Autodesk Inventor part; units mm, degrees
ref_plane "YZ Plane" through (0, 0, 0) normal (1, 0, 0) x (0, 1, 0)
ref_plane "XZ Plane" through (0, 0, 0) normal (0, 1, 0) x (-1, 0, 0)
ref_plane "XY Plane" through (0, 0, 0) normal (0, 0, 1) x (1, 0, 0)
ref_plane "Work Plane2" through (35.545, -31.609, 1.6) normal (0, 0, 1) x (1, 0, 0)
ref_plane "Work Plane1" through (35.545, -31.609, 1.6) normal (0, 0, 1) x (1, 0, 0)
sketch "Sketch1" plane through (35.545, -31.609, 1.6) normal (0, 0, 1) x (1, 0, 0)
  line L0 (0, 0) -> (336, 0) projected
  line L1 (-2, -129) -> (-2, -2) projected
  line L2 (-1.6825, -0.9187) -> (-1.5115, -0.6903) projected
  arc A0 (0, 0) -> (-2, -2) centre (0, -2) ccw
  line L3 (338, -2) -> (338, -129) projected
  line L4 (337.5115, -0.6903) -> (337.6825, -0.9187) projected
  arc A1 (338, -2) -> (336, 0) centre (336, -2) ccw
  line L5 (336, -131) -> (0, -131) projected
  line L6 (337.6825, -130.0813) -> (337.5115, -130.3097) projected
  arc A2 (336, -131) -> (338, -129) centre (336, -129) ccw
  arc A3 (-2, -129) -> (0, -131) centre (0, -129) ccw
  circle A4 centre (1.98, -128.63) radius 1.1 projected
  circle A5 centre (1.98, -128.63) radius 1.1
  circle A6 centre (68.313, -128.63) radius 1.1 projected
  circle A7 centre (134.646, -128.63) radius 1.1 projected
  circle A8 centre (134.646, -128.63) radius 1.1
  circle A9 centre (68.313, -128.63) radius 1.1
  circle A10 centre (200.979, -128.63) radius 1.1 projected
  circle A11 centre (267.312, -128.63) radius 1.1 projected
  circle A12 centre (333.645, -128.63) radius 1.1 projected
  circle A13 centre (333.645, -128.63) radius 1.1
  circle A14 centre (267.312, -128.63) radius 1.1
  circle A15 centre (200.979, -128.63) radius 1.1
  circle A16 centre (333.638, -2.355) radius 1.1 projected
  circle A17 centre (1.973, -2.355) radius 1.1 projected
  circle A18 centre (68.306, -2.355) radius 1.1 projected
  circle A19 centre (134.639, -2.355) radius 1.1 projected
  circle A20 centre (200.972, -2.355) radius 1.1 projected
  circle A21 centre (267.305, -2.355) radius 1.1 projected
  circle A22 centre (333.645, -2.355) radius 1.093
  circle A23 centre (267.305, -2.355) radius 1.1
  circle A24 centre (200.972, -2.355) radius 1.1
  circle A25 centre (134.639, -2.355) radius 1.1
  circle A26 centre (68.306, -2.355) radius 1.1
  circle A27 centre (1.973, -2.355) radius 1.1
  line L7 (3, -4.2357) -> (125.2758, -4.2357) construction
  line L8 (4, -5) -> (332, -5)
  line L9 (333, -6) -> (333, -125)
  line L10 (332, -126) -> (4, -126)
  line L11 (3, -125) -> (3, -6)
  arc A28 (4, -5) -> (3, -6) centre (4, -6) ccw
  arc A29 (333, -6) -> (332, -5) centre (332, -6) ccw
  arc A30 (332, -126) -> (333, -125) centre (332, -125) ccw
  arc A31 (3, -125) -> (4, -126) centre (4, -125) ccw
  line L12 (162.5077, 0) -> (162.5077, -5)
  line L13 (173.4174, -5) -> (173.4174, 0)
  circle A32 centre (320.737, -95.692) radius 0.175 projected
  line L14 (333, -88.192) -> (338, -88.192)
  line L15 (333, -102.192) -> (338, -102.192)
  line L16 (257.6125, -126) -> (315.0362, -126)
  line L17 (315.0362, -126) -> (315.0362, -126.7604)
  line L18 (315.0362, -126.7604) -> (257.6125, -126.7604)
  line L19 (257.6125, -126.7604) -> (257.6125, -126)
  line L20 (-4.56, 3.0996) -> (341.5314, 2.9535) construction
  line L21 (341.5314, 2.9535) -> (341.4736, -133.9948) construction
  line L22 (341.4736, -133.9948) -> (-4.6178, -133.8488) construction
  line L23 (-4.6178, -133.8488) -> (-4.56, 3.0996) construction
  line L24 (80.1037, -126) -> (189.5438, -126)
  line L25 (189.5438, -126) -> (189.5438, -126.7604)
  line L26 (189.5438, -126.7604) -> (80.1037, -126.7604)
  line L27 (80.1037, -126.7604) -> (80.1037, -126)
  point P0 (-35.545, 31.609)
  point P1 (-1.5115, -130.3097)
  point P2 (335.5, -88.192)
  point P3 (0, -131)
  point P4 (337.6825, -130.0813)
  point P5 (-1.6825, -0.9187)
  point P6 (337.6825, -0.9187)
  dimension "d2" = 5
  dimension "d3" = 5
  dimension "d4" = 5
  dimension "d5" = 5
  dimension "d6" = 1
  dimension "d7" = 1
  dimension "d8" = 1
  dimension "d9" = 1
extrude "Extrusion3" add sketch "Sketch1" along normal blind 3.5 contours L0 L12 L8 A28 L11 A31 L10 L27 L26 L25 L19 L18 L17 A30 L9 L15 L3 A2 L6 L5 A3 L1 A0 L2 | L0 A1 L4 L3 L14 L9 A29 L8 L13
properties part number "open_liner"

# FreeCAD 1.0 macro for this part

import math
import FreeCAD as App
import Part
import Sketcher
Q = App.Units.Quantity

doc = App.newDocument("Part")
body = doc.addObject("PartDesign::Body", "Body")
body.AllowCompound = True

sketch1 = doc.addObject("Sketcher::SketchObject", "Sketch")
body.addObject(sketch1)
sketch1.AttachmentSupport = (doc.XY_Plane, [""])
sketch1.MapMode = "FlatFace"
sketch1.AttachmentOffset = App.Placement(App.Vector(0, 0, 1.6), App.Rotation())
sketch1.addGeometry(Part.LineSegment(App.Vector(198.05, -31.61, 0), App.Vector(35.55, -31.61, 0)), False)
sketch1.addGeometry(Part.ArcOfCircle(Part.Circle(App.Vector(35.55, -33.61, 0), App.Vector(0, 0, 1), 2), math.radians(90), math.radians(139)), False)
sketch1.addGeometry(Part.LineSegment(App.Vector(34.03, -32.3, 0), App.Vector(33.86, -32.53, 0)), False)
sketch1.addGeometry(Part.ArcOfCircle(Part.Circle(App.Vector(35.55, -33.61, 0), App.Vector(0, 0, 1), 2), math.radians(147), math.radians(180)), False)
sketch1.addGeometry(Part.LineSegment(App.Vector(33.55, -33.61, 0), App.Vector(33.55, -160.61, 0)), False)
sketch1.addGeometry(Part.ArcOfCircle(Part.Circle(App.Vector(35.55, -160.61, 0), App.Vector(0, 0, 1), 2), math.radians(180), math.radians(270)), False)
sketch1.addGeometry(Part.LineSegment(App.Vector(35.55, -162.61, 0), App.Vector(371.55, -162.61, 0)), False)
sketch1.addGeometry(Part.ArcOfCircle(Part.Circle(App.Vector(371.55, -160.61, 0), App.Vector(0, 0, 1), 2), math.radians(-90), math.radians(-41)), False)
sketch1.addGeometry(Part.LineSegment(App.Vector(373.06, -161.92, 0), App.Vector(373.23, -161.69, 0)), False)
sketch1.addGeometry(Part.ArcOfCircle(Part.Circle(App.Vector(371.55, -160.61, 0), App.Vector(0, 0, 1), 2), math.radians(-33), math.radians(0)), False)
sketch1.addGeometry(Part.LineSegment(App.Vector(373.55, -160.61, 0), App.Vector(373.55, -133.8, 0)), False)
sketch1.addGeometry(Part.LineSegment(App.Vector(373.55, -133.8, 0), App.Vector(368.55, -133.8, 0)), False)
sketch1.addGeometry(Part.LineSegment(App.Vector(368.55, -133.8, 0), App.Vector(368.55, -156.61, 0)), False)
sketch1.addGeometry(Part.ArcOfCircle(Part.Circle(App.Vector(367.55, -156.61, 0), App.Vector(0, 0, 1), 1), math.radians(-90), math.radians(0)), False)
sketch1.addGeometry(Part.LineSegment(App.Vector(367.55, -157.61, 0), App.Vector(350.58, -157.61, 0)), False)
sketch1.addGeometry(Part.LineSegment(App.Vector(350.58, -157.61, 0), App.Vector(350.58, -158.37, 0)), False)
sketch1.addGeometry(Part.LineSegment(App.Vector(350.58, -158.37, 0), App.Vector(293.16, -158.37, 0)), False)
sketch1.addGeometry(Part.LineSegment(App.Vector(293.16, -158.37, 0), App.Vector(293.16, -157.61, 0)), False)
sketch1.addGeometry(Part.LineSegment(App.Vector(293.16, -157.61, 0), App.Vector(225.09, -157.61, 0)), False)
sketch1.addGeometry(Part.LineSegment(App.Vector(225.09, -157.61, 0), App.Vector(225.09, -158.37, 0)), False)
sketch1.addGeometry(Part.LineSegment(App.Vector(225.09, -158.37, 0), App.Vector(115.65, -158.37, 0)), False)
sketch1.addGeometry(Part.LineSegment(App.Vector(115.65, -158.37, 0), App.Vector(115.65, -157.61, 0)), False)
sketch1.addGeometry(Part.LineSegment(App.Vector(115.65, -157.61, 0), App.Vector(39.55, -157.61, 0)), False)
sketch1.addGeometry(Part.ArcOfCircle(Part.Circle(App.Vector(39.55, -156.61, 0), App.Vector(0, 0, 1), 1), math.radians(180), math.radians(270)), False)
sketch1.addGeometry(Part.LineSegment(App.Vector(38.55, -156.61, 0), App.Vector(38.55, -37.61, 0)), False)
sketch1.addGeometry(Part.ArcOfCircle(Part.Circle(App.Vector(39.55, -37.61, 0), App.Vector(0, 0, 1), 1), math.radians(90), math.radians(180)), False)
sketch1.addGeometry(Part.LineSegment(App.Vector(39.55, -36.61, 0), App.Vector(198.05, -36.61, 0)), False)
sketch1.addGeometry(Part.LineSegment(App.Vector(198.05, -36.61, 0), App.Vector(198.05, -31.61, 0)), False)
sketch1.addGeometry(Part.Circle(App.Vector(37.52, -160.24, 0), App.Vector(0, 0, 1), 1.1), False)
sketch1.addGeometry(Part.Circle(App.Vector(103.86, -160.24, 0), App.Vector(0, 0, 1), 1.1), False)
sketch1.addGeometry(Part.Circle(App.Vector(170.19, -160.24, 0), App.Vector(0, 0, 1), 1.1), False)
sketch1.addGeometry(Part.Circle(App.Vector(236.52, -160.24, 0), App.Vector(0, 0, 1), 1.1), False)
sketch1.addGeometry(Part.Circle(App.Vector(302.86, -160.24, 0), App.Vector(0, 0, 1), 1.1), False)
sketch1.addGeometry(Part.Circle(App.Vector(369.19, -160.24, 0), App.Vector(0, 0, 1), 1.1), False)
sketch1.addGeometry(Part.Circle(App.Vector(37.52, -33.96, 0), App.Vector(0, 0, 1), 1.1), False)
sketch1.addGeometry(Part.Circle(App.Vector(103.85, -33.96, 0), App.Vector(0, 0, 1), 1.1), False)
sketch1.addGeometry(Part.Circle(App.Vector(170.18, -33.96, 0), App.Vector(0, 0, 1), 1.1), False)
sketch1.addGeometry(Part.LineSegment(App.Vector(371.55, -31.61, 0), App.Vector(208.96, -31.61, 0)), False)
sketch1.addGeometry(Part.LineSegment(App.Vector(208.96, -31.61, 0), App.Vector(208.96, -36.61, 0)), False)
sketch1.addGeometry(Part.LineSegment(App.Vector(208.96, -36.61, 0), App.Vector(367.55, -36.61, 0)), False)
sketch1.addGeometry(Part.ArcOfCircle(Part.Circle(App.Vector(367.55, -37.61, 0), App.Vector(0, 0, 1), 1), math.radians(0), math.radians(90)), False)
sketch1.addGeometry(Part.LineSegment(App.Vector(368.55, -37.61, 0), App.Vector(368.55, -119.8, 0)), False)
sketch1.addGeometry(Part.LineSegment(App.Vector(368.55, -119.8, 0), App.Vector(373.55, -119.8, 0)), False)
sketch1.addGeometry(Part.LineSegment(App.Vector(373.55, -119.8, 0), App.Vector(373.55, -33.61, 0)), False)
sketch1.addGeometry(Part.ArcOfCircle(Part.Circle(App.Vector(371.55, -33.61, 0), App.Vector(0, 0, 1), 2), math.radians(0), math.radians(33)), False)
sketch1.addGeometry(Part.LineSegment(App.Vector(373.23, -32.53, 0), App.Vector(373.06, -32.3, 0)), False)
sketch1.addGeometry(Part.ArcOfCircle(Part.Circle(App.Vector(371.55, -33.61, 0), App.Vector(0, 0, 1), 2), math.radians(41), math.radians(90)), False)
sketch1.addGeometry(Part.Circle(App.Vector(236.52, -33.96, 0), App.Vector(0, 0, 1), 1.1), False)
sketch1.addGeometry(Part.Circle(App.Vector(302.85, -33.96, 0), App.Vector(0, 0, 1), 1.1), False)
sketch1.addGeometry(Part.Circle(App.Vector(369.18, -33.96, 0), App.Vector(0, 0, 1), 1.1), False)
sketch1.addConstraint(Sketcher.Constraint("Tangent", 0, 2, 1, 1))
sketch1.addConstraint(Sketcher.Constraint("Coincident", 1, 2, 2, 1))
sketch1.addConstraint(Sketcher.Constraint("Coincident", 2, 2, 3, 1))
sketch1.addConstraint(Sketcher.Constraint("Tangent", 3, 2, 4, 1))
sketch1.addConstraint(Sketcher.Constraint("Tangent", 4, 2, 5, 1))
sketch1.addConstraint(Sketcher.Constraint("Tangent", 5, 2, 6, 1))
sketch1.addConstraint(Sketcher.Constraint("Tangent", 6, 2, 7, 1))
sketch1.addConstraint(Sketcher.Constraint("Coincident", 7, 2, 8, 1))
sketch1.addConstraint(Sketcher.Constraint("Coincident", 8, 2, 9, 1))
sketch1.addConstraint(Sketcher.Constraint("Tangent", 9, 2, 10, 1))
sketch1.addConstraint(Sketcher.Constraint("Coincident", 10, 2, 11, 1))
sketch1.addConstraint(Sketcher.Constraint("Coincident", 11, 2, 12, 1))
sketch1.addConstraint(Sketcher.Constraint("Tangent", 12, 2, 13, 2))
sketch1.addConstraint(Sketcher.Constraint("Tangent", 13, 1, 14, 1))
sketch1.addConstraint(Sketcher.Constraint("Coincident", 14, 2, 15, 1))
sketch1.addConstraint(Sketcher.Constraint("Coincident", 15, 2, 16, 1))
sketch1.addConstraint(Sketcher.Constraint("Coincident", 16, 2, 17, 1))
sketch1.addConstraint(Sketcher.Constraint("Coincident", 17, 2, 18, 1))
sketch1.addConstraint(Sketcher.Constraint("Coincident", 18, 2, 19, 1))
sketch1.addConstraint(Sketcher.Constraint("Coincident", 19, 2, 20, 1))
sketch1.addConstraint(Sketcher.Constraint("Coincident", 20, 2, 21, 1))
sketch1.addConstraint(Sketcher.Constraint("Coincident", 21, 2, 22, 1))
sketch1.addConstraint(Sketcher.Constraint("Tangent", 22, 2, 23, 2))
sketch1.addConstraint(Sketcher.Constraint("Tangent", 23, 1, 24, 1))
sketch1.addConstraint(Sketcher.Constraint("Tangent", 24, 2, 25, 2))
sketch1.addConstraint(Sketcher.Constraint("Tangent", 25, 1, 26, 1))
sketch1.addConstraint(Sketcher.Constraint("Coincident", 26, 2, 27, 1))
sketch1.addConstraint(Sketcher.Constraint("Coincident", 27, 2, 0, 1))
sketch1.addConstraint(Sketcher.Constraint("Coincident", 37, 2, 38, 1))
sketch1.addConstraint(Sketcher.Constraint("Coincident", 38, 2, 39, 1))
sketch1.addConstraint(Sketcher.Constraint("Tangent", 39, 2, 40, 2))
sketch1.addConstraint(Sketcher.Constraint("Tangent", 40, 1, 41, 1))
sketch1.addConstraint(Sketcher.Constraint("Coincident", 41, 2, 42, 1))
sketch1.addConstraint(Sketcher.Constraint("Coincident", 42, 2, 43, 1))
sketch1.addConstraint(Sketcher.Constraint("Tangent", 43, 2, 44, 1))
sketch1.addConstraint(Sketcher.Constraint("Coincident", 44, 2, 45, 1))
sketch1.addConstraint(Sketcher.Constraint("Coincident", 45, 2, 46, 1))
sketch1.addConstraint(Sketcher.Constraint("Tangent", 46, 2, 37, 1))
sketch1.addConstraint(Sketcher.Constraint("Horizontal", 0))
sketch1.addConstraint(Sketcher.Constraint("Vertical", 4))
sketch1.addConstraint(Sketcher.Constraint("Horizontal", 6))
sketch1.addConstraint(Sketcher.Constraint("Vertical", 10))
sketch1.addConstraint(Sketcher.Constraint("Horizontal", 11))
sketch1.addConstraint(Sketcher.Constraint("Vertical", 12))
sketch1.addConstraint(Sketcher.Constraint("Horizontal", 14))
sketch1.addConstraint(Sketcher.Constraint("Vertical", 15))
sketch1.addConstraint(Sketcher.Constraint("Horizontal", 16))
sketch1.addConstraint(Sketcher.Constraint("Vertical", 17))
sketch1.addConstraint(Sketcher.Constraint("Horizontal", 18))
sketch1.addConstraint(Sketcher.Constraint("Vertical", 19))
sketch1.addConstraint(Sketcher.Constraint("Horizontal", 20))
sketch1.addConstraint(Sketcher.Constraint("Vertical", 21))
sketch1.addConstraint(Sketcher.Constraint("Horizontal", 22))
sketch1.addConstraint(Sketcher.Constraint("Vertical", 24))
sketch1.addConstraint(Sketcher.Constraint("Horizontal", 26))
sketch1.addConstraint(Sketcher.Constraint("Vertical", 27))
sketch1.addConstraint(Sketcher.Constraint("Horizontal", 37))
sketch1.addConstraint(Sketcher.Constraint("Vertical", 38))
sketch1.addConstraint(Sketcher.Constraint("Horizontal", 39))
sketch1.addConstraint(Sketcher.Constraint("Vertical", 41))
sketch1.addConstraint(Sketcher.Constraint("Horizontal", 42))
sketch1.addConstraint(Sketcher.Constraint("Vertical", 43))
sketch1.addConstraint(Sketcher.Constraint("Coincident", 3, 3, 1, 3))
sketch1.addConstraint(Sketcher.Constraint("Coincident", 9, 3, 7, 3))
sketch1.addConstraint(Sketcher.Constraint("Coincident", 46, 3, 44, 3))
sketch1.addConstraint(Sketcher.Constraint("Equal", 1, 3))
sketch1.addConstraint(Sketcher.Constraint("Equal", 3, 5))
sketch1.addConstraint(Sketcher.Constraint("Equal", 5, 7))
sketch1.addConstraint(Sketcher.Constraint("Equal", 7, 9))
sketch1.addConstraint(Sketcher.Constraint("Equal", 13, 23))
sketch1.addConstraint(Sketcher.Constraint("Equal", 23, 25))
sketch1.addConstraint(Sketcher.Constraint("Equal", 28, 29))
sketch1.addConstraint(Sketcher.Constraint("Equal", 29, 30))
sketch1.addConstraint(Sketcher.Constraint("Equal", 30, 31))
sketch1.addConstraint(Sketcher.Constraint("Equal", 31, 32))
sketch1.addConstraint(Sketcher.Constraint("Equal", 32, 33))
sketch1.addConstraint(Sketcher.Constraint("Equal", 33, 34))
sketch1.addConstraint(Sketcher.Constraint("Equal", 34, 35))
sketch1.addConstraint(Sketcher.Constraint("Equal", 35, 36))
sketch1.addConstraint(Sketcher.Constraint("Equal", 25, 40))
sketch1.addConstraint(Sketcher.Constraint("Equal", 9, 44))
sketch1.addConstraint(Sketcher.Constraint("Equal", 44, 46))
sketch1.addConstraint(Sketcher.Constraint("Equal", 36, 47))
sketch1.addConstraint(Sketcher.Constraint("Equal", 47, 48))
sketch1.addConstraint(Sketcher.Constraint("Equal", 48, 49))
sketch1.addConstraint(Sketcher.Constraint("Parallel", 2, 8))
sketch1.addConstraint(Sketcher.Constraint("Horizontal", 13, 3, 23, 3))
sketch1.addConstraint(Sketcher.Constraint("Horizontal", 28, 3, 29, 3))
sketch1.addConstraint(Sketcher.Constraint("Horizontal", 29, 3, 30, 3))
sketch1.addConstraint(Sketcher.Constraint("Horizontal", 30, 3, 31, 3))
sketch1.addConstraint(Sketcher.Constraint("Horizontal", 31, 3, 32, 3))
sketch1.addConstraint(Sketcher.Constraint("Horizontal", 32, 3, 33, 3))
sketch1.addConstraint(Sketcher.Constraint("Horizontal", 34, 3, 35, 3))
sketch1.addConstraint(Sketcher.Constraint("Horizontal", 35, 3, 36, 3))
sketch1.addConstraint(Sketcher.Constraint("Horizontal", 25, 3, 40, 3))
sketch1.addConstraint(Sketcher.Constraint("Horizontal", 3, 3, 44, 3))
sketch1.addConstraint(Sketcher.Constraint("Horizontal", 36, 3, 47, 3))
sketch1.addConstraint(Sketcher.Constraint("Horizontal", 47, 3, 48, 3))
sketch1.addConstraint(Sketcher.Constraint("Horizontal", 48, 3, 49, 3))
sketch1.addConstraint(Sketcher.Constraint("Horizontal", 14, 2, 17, 2))
sketch1.addConstraint(Sketcher.Constraint("Horizontal", 16, 2, 19, 2))
sketch1.addConstraint(Sketcher.Constraint("Horizontal", 2, 2, 44, 2))
sketch1.addConstraint(Sketcher.Constraint("Horizontal", 1, 2, 45, 2))
sketch1.addConstraint(Sketcher.Constraint("Vertical", 13, 3, 40, 3))
sketch1.addConstraint(Sketcher.Constraint("Vertical", 9, 3, 44, 3))
sketch1.addConstraint(Sketcher.Constraint("Vertical", 8, 2, 44, 2))
sketch1.addConstraint(Sketcher.Constraint("Equal", 42, 27))
sketch1.addConstraint(Sketcher.Constraint("Radius", 13, Q("1 mm")))
sketch1.addConstraint(Sketcher.Constraint("DistanceX", 11, 2, 11, 1, Q("5 mm")))
sketch1.addConstraint(Sketcher.Constraint("Radius", 1, Q("2 mm")))
sketch1.addConstraint(Sketcher.Constraint("Diameter", 28, Q("2.2 mm")))
sketch1.addConstraint(Sketcher.Constraint("DistanceX", 6, 1, 6, 2, Q("336 mm")))
sketch1.addConstraint(Sketcher.Constraint("DistanceY", 4, 2, 4, 1, Q("127 mm")))
sketch1.addConstraint(Sketcher.Constraint("DistanceY", 24, 1, 24, 2, Q("119 mm")))
sketch1.addConstraint(Sketcher.Constraint("DistanceX", 20, 2, 20, 1, Q("109.44 mm")))
sketch1.addConstraint(Sketcher.Constraint("DistanceY", 10, 1, 10, 2, Q("26.808 mm")))
sketch1.addConstraint(Sketcher.Constraint("DistanceY", 41, 2, 41, 1, Q("82.192 mm")))
sketch1.addConstraint(Sketcher.Constraint("DistanceX", -1, 1, 33, 3, Q("369.19 mm")))
sketch1.addConstraint(Sketcher.Constraint("DistanceX", -1, 1, 48, 3, Q("302.85 mm")))
sketch1.addConstraint(Sketcher.Constraint("DistanceX", 0, 2, 0, 1, Q("162.5077 mm")))
sketch1.addConstraint(Sketcher.Constraint("DistanceX", 14, 2, 14, 1, Q("16.9638 mm")))
sketch1.addConstraint(Sketcher.Constraint("DistanceX", 16, 2, 16, 1, Q("57.4237 mm")))
sketch1.addConstraint(Sketcher.Constraint("DistanceX", 18, 2, 18, 1, Q("68.0687 mm")))
sketch1.addConstraint(Sketcher.Constraint("DistanceX", 22, 2, 22, 1, Q("76.1037 mm")))
sketch1.addConstraint(Sketcher.Constraint("DistanceX", 37, 2, 37, 1, Q("162.5826 mm")))
sketch1.addConstraint(Sketcher.Constraint("DistanceY", 15, 2, 15, 1, Q("0.7604 mm")))
sketch1.addConstraint(Sketcher.Constraint("DistanceX", -1, 1, 1, 3, Q("35.545 mm")))
sketch1.addConstraint(Sketcher.Constraint("DistanceY", 1, 3, -1, 1, Q("33.609 mm")))
sketch1.addConstraint(Sketcher.Constraint("DistanceX", -1, 1, 28, 3, Q("37.525 mm")))
sketch1.addConstraint(Sketcher.Constraint("DistanceY", 28, 3, -1, 1, Q("160.239 mm")))
sketch1.addConstraint(Sketcher.Constraint("DistanceX", -1, 1, 29, 3, Q("103.858 mm")))
sketch1.addConstraint(Sketcher.Constraint("DistanceX", -1, 1, 30, 3, Q("170.191 mm")))
sketch1.addConstraint(Sketcher.Constraint("DistanceX", -1, 1, 31, 3, Q("236.524 mm")))
sketch1.addConstraint(Sketcher.Constraint("DistanceX", -1, 1, 32, 3, Q("302.857 mm")))
sketch1.addConstraint(Sketcher.Constraint("DistanceX", -1, 1, 34, 3, Q("37.518 mm")))
sketch1.addConstraint(Sketcher.Constraint("DistanceY", 34, 3, -1, 1, Q("33.964 mm")))
sketch1.addConstraint(Sketcher.Constraint("DistanceX", -1, 1, 35, 3, Q("103.851 mm")))
sketch1.addConstraint(Sketcher.Constraint("DistanceX", -1, 1, 36, 3, Q("170.184 mm")))
sketch1.addConstraint(Sketcher.Constraint("DistanceX", -1, 1, 47, 3, Q("236.517 mm")))
sketch1.addConstraint(Sketcher.Constraint("DistanceX", -1, 1, 49, 3, Q("369.183 mm")))
sketch1.addConstraint(Sketcher.Constraint("Distance", 2, Q("0.2853 mm")))
sketch1.addConstraint(Sketcher.Constraint("DistanceX", -1, 1, 1, 2, Q("34.0335 mm")))
pad1 = doc.addObject("PartDesign::Pad", "Pad")
body.addObject(pad1)
pad1.Profile = sketch1
pad1.Length = 3.5

doc.recompute()
